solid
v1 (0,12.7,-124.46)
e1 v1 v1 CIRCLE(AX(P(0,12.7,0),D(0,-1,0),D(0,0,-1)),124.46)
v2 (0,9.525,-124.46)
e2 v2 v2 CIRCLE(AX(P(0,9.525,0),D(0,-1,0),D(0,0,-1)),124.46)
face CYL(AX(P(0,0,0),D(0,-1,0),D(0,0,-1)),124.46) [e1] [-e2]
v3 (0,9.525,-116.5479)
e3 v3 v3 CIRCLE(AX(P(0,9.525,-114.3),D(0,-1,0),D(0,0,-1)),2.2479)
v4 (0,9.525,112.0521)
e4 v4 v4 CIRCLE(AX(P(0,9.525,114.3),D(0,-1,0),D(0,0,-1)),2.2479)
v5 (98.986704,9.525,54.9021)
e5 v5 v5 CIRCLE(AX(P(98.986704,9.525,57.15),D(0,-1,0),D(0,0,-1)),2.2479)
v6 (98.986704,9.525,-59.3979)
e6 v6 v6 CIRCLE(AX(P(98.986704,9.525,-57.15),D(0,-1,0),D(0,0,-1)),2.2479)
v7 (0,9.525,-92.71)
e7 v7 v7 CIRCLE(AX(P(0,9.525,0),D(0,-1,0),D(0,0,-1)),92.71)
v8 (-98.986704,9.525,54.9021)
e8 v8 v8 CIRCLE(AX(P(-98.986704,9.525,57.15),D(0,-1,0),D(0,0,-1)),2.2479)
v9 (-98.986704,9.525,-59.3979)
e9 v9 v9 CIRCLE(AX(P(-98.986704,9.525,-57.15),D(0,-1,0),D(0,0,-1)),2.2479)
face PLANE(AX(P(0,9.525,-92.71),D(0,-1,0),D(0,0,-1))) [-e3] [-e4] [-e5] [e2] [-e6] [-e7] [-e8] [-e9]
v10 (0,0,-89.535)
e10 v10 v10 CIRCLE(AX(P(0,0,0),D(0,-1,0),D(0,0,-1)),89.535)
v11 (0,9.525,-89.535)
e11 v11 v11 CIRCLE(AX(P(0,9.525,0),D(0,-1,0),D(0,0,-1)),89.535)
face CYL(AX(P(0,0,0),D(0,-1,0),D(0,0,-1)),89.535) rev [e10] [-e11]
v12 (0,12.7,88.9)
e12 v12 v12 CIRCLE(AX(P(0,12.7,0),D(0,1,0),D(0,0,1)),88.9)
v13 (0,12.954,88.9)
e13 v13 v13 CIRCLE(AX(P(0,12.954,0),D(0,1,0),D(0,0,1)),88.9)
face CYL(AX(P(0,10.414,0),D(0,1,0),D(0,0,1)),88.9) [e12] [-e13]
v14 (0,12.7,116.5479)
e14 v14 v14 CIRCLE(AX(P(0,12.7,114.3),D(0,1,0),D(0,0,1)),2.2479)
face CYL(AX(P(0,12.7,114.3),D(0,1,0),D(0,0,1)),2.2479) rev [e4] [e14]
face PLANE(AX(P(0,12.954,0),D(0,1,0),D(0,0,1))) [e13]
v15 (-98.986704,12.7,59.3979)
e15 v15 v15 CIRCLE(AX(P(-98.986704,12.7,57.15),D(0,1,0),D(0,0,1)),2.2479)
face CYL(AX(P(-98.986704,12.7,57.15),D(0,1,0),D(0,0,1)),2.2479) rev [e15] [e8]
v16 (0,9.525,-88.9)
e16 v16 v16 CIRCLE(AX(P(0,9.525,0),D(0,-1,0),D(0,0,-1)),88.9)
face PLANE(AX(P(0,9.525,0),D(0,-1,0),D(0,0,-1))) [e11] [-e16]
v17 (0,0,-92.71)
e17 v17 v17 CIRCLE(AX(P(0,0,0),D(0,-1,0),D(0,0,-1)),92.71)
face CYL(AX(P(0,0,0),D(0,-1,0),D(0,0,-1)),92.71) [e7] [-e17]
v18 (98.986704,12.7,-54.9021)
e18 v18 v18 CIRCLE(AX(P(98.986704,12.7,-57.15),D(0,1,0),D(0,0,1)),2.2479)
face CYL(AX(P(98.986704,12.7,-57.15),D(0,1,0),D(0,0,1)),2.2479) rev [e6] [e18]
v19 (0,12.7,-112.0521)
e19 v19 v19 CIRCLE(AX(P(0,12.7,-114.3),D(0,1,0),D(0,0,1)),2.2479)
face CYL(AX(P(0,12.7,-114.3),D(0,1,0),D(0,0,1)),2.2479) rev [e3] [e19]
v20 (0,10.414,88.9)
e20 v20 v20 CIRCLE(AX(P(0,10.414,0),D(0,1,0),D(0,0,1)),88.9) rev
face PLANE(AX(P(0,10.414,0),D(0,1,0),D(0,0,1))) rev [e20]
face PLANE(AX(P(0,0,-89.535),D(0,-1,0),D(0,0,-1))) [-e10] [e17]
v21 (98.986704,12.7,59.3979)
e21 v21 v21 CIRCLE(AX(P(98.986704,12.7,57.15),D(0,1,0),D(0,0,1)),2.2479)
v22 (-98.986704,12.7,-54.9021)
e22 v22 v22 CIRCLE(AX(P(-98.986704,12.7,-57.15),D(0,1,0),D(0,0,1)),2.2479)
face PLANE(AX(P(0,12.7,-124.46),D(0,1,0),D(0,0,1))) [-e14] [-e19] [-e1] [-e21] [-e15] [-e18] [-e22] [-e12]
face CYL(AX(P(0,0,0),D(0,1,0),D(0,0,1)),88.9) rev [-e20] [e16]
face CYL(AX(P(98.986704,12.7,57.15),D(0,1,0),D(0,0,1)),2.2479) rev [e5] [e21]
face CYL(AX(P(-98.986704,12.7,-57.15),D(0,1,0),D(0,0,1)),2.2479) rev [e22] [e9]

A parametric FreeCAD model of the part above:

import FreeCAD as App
import Part
import Sketcher

V = App.Vector
Q = App.Units.Quantity

doc = App.newDocument("Part")
params = doc.addObject("Spreadsheet::Sheet", "Params")
for row, (alias, value) in enumerate([
    ("sketch1_height", "4.9 in"),
    ("sketch1_height2", "1.25 in"),
    ("sketch1_width", "0.375 in"),
    ("revolution_angle", "360 deg"),
    ("sketch2_diameter", "0.177 in"),
    ("hole_diameter", "0.177 in"),
    ("hole_depth", "3.176 mm"),
    ("sketch3_diameter", "7 in"),
    ("sketch4_diameter", "7 in"),
    ("pad1_length", "0.1 in"),
], start=1):
    params.set(f"A{row}", alias)
    params.set(f"B{row}", "=" + value)
    params.setAlias(f"B{row}", alias)

body = doc.addObject("PartDesign::Body", "Body")

# Sketch on YZ plane
sketch1 = doc.addObject("Sketcher::SketchObject", "Sketch")
body.addObject(sketch1)
sketch1.AttachmentSupport = (doc.YZ_Plane, [""])
sketch1.MapMode = "FlatFace"
sketch1.addGeometry(Part.LineSegment(V(0, -89.5, 0), V(0, -92.7, 0)), False)
sketch1.addGeometry(Part.LineSegment(V(0, -92.7, 0), V(9.5, -92.7, 0)), False)
sketch1.addGeometry(Part.LineSegment(V(9.5, -92.7, 0), V(9.5, -124.5, 0)), False)
sketch1.addGeometry(Part.LineSegment(V(9.5, -124.5, 0), V(12.7, -124.5, 0)), False)
sketch1.addGeometry(Part.LineSegment(V(12.7, -124.5, 0), V(12.7, 0, 0)), False)
sketch1.addGeometry(Part.LineSegment(V(12.7, 0, 0), V(9.5, 0, 0)), False)
sketch1.addGeometry(Part.LineSegment(V(9.5, 0, 0), V(9.5, -89.5, 0)), False)
sketch1.addGeometry(Part.LineSegment(V(9.5, -89.5, 0), V(0, -89.5, 0)), False)
sketch1.addConstraint(Sketcher.Constraint("Coincident", 0, 2, 1, 1))
sketch1.addConstraint(Sketcher.Constraint("Coincident", 1, 2, 2, 1))
sketch1.addConstraint(Sketcher.Constraint("Coincident", 2, 2, 3, 1))
sketch1.addConstraint(Sketcher.Constraint("Coincident", 3, 2, 4, 1))
sketch1.addConstraint(Sketcher.Constraint("Coincident", 4, 2, 5, 1))
sketch1.addConstraint(Sketcher.Constraint("Coincident", 5, 2, 6, 1))
sketch1.addConstraint(Sketcher.Constraint("Coincident", 6, 2, 7, 1))
sketch1.addConstraint(Sketcher.Constraint("Coincident", 7, 2, 0, 1))
sketch1.addConstraint(Sketcher.Constraint("Vertical", 0))
sketch1.addConstraint(Sketcher.Constraint("Horizontal", 1))
sketch1.addConstraint(Sketcher.Constraint("Vertical", 2))
sketch1.addConstraint(Sketcher.Constraint("Horizontal", 3))
sketch1.addConstraint(Sketcher.Constraint("Vertical", 4))
sketch1.addConstraint(Sketcher.Constraint("Horizontal", 5))
sketch1.addConstraint(Sketcher.Constraint("Vertical", 6))
sketch1.addConstraint(Sketcher.Constraint("Horizontal", 7))
sketch1.addConstraint(Sketcher.Constraint("PointOnObject", 0, 2, -2))
sketch1.addConstraint(Sketcher.Constraint("PointOnObject", 4, 2, -1))
sketch1.addConstraint(Sketcher.Constraint("Vertical", 2, 2, 5, 2))
sketch1.addConstraint(Sketcher.Constraint("Equal", 5, 0))
sketch1.addConstraint(Sketcher.Constraint("DistanceY", 4, 1, 4, 2, Q("4.9 in")))
sketch1.addConstraint(Sketcher.Constraint("DistanceY", 2, 2, 2, 1, Q("1.25 in")))
sketch1.addConstraint(Sketcher.Constraint("DistanceX", -1, 1, 3, 2, Q("0.5 in")))
sketch1.addConstraint(Sketcher.Constraint("DistanceX", 1, 1, 1, 2, Q("0.375 in")))
sketch1.setExpression("Constraints[20]", "Params.sketch1_height")
sketch1.setExpression("Constraints[21]", "Params.sketch1_height2")
sketch1.setExpression("Constraints[23]", "Params.sketch1_width")
revolution = doc.addObject("PartDesign::Revolution", "Revolution")
body.addObject(revolution)
revolution.Profile = sketch1
revolution.ReferenceAxis = (sketch1, ["H_Axis"])
revolution.setExpression("Angle", "Params.revolution_angle")

# Sketch on XZ plane
sketch2 = doc.addObject("Sketcher::SketchObject", "Sketch001")
body.addObject(sketch2)
sketch2.AttachmentSupport = (doc.XZ_Plane, [""])
sketch2.MapMode = "FlatFace"
sketch2.AttachmentOffset = App.Placement(V(0, 0, -0.5 * 25.4), App.Rotation())
sketch2.addGeometry(Part.Circle(V(0, -114.3, 0), V(0, 0, 1), 2.2), False)
sketch2.addConstraint(Sketcher.Constraint("PointOnObject", 0, 3, -2))
sketch2.addConstraint(Sketcher.Constraint("Diameter", 0, Q("0.177 in")))
sketch2.addConstraint(Sketcher.Constraint("DistanceY", 0, 3, -1, 1, Q("4.5 in")))
sketch2.setExpression("Constraints[1]", "Params.sketch2_diameter")
doc.recompute()
hole = doc.addObject("PartDesign::Hole", "Hole")
body.addObject(hole)
hole.Profile = sketch2
hole.ThreadType = "None"
hole.setExpression("Diameter", "Params.hole_diameter")
hole.DepthType = "Dimension"
hole.setExpression("Depth", "Params.hole_depth")
hole.DrillPoint = "Flat"
hole.Reversed = True
doc.recompute()

polarpattern = doc.addObject("PartDesign::PolarPattern", "PolarPattern")
body.addObject(polarpattern)
polarpattern.Originals = [hole]
polarpattern.Axis = (doc.Y_Axis, [""])
polarpattern.Angle = 360
polarpattern.Occurrences = 6
body.Tip = polarpattern

# Sketch on XZ plane
sketch3 = doc.addObject("Sketcher::SketchObject", "Sketch002")
body.addObject(sketch3)
sketch3.AttachmentSupport = (doc.XZ_Plane, [""])
sketch3.MapMode = "FlatFace"
sketch3.AttachmentOffset = App.Placement(V(0, 0, -0.5 * 25.4), App.Rotation())
sketch3.addGeometry(Part.Circle(V(0, 0, 0), V(0, 0, 1), 89), False)
sketch3.addConstraint(Sketcher.Constraint("Coincident", 0, 3, -1, 1))
sketch3.addConstraint(Sketcher.Constraint("Diameter", 0, Q("7 in")))
sketch3.setExpression("Constraints[1]", "Params.sketch3_diameter")
pocket1 = doc.addObject("PartDesign::Pocket", "Pocket")
body.addObject(pocket1)
pocket1.Profile = sketch3
pocket1.Type = "ThroughAll"
pocket1.Reversed = True

# Sketch on XZ plane
sketch4 = doc.addObject("Sketcher::SketchObject", "Sketch003")
body.addObject(sketch4)
sketch4.AttachmentSupport = (doc.XZ_Plane, [""])
sketch4.MapMode = "FlatFace"
sketch4.AttachmentOffset = App.Placement(V(0, 0, -0.51 * 25.4), App.Rotation())
sketch4.addGeometry(Part.Circle(V(0, 0, 0), V(0, 0, 1), 89), False)
sketch4.addConstraint(Sketcher.Constraint("Coincident", 0, 3, -1, 1))
sketch4.addConstraint(Sketcher.Constraint("Diameter", 0, Q("7 in")))
sketch4.setExpression("Constraints[1]", "Params.sketch4_diameter")
pad1 = doc.addObject("PartDesign::Pad", "Pad")
body.addObject(pad1)
pad1.Profile = sketch4
pad1.setExpression("Length", "Params.pad1_length")

doc.recompute()
